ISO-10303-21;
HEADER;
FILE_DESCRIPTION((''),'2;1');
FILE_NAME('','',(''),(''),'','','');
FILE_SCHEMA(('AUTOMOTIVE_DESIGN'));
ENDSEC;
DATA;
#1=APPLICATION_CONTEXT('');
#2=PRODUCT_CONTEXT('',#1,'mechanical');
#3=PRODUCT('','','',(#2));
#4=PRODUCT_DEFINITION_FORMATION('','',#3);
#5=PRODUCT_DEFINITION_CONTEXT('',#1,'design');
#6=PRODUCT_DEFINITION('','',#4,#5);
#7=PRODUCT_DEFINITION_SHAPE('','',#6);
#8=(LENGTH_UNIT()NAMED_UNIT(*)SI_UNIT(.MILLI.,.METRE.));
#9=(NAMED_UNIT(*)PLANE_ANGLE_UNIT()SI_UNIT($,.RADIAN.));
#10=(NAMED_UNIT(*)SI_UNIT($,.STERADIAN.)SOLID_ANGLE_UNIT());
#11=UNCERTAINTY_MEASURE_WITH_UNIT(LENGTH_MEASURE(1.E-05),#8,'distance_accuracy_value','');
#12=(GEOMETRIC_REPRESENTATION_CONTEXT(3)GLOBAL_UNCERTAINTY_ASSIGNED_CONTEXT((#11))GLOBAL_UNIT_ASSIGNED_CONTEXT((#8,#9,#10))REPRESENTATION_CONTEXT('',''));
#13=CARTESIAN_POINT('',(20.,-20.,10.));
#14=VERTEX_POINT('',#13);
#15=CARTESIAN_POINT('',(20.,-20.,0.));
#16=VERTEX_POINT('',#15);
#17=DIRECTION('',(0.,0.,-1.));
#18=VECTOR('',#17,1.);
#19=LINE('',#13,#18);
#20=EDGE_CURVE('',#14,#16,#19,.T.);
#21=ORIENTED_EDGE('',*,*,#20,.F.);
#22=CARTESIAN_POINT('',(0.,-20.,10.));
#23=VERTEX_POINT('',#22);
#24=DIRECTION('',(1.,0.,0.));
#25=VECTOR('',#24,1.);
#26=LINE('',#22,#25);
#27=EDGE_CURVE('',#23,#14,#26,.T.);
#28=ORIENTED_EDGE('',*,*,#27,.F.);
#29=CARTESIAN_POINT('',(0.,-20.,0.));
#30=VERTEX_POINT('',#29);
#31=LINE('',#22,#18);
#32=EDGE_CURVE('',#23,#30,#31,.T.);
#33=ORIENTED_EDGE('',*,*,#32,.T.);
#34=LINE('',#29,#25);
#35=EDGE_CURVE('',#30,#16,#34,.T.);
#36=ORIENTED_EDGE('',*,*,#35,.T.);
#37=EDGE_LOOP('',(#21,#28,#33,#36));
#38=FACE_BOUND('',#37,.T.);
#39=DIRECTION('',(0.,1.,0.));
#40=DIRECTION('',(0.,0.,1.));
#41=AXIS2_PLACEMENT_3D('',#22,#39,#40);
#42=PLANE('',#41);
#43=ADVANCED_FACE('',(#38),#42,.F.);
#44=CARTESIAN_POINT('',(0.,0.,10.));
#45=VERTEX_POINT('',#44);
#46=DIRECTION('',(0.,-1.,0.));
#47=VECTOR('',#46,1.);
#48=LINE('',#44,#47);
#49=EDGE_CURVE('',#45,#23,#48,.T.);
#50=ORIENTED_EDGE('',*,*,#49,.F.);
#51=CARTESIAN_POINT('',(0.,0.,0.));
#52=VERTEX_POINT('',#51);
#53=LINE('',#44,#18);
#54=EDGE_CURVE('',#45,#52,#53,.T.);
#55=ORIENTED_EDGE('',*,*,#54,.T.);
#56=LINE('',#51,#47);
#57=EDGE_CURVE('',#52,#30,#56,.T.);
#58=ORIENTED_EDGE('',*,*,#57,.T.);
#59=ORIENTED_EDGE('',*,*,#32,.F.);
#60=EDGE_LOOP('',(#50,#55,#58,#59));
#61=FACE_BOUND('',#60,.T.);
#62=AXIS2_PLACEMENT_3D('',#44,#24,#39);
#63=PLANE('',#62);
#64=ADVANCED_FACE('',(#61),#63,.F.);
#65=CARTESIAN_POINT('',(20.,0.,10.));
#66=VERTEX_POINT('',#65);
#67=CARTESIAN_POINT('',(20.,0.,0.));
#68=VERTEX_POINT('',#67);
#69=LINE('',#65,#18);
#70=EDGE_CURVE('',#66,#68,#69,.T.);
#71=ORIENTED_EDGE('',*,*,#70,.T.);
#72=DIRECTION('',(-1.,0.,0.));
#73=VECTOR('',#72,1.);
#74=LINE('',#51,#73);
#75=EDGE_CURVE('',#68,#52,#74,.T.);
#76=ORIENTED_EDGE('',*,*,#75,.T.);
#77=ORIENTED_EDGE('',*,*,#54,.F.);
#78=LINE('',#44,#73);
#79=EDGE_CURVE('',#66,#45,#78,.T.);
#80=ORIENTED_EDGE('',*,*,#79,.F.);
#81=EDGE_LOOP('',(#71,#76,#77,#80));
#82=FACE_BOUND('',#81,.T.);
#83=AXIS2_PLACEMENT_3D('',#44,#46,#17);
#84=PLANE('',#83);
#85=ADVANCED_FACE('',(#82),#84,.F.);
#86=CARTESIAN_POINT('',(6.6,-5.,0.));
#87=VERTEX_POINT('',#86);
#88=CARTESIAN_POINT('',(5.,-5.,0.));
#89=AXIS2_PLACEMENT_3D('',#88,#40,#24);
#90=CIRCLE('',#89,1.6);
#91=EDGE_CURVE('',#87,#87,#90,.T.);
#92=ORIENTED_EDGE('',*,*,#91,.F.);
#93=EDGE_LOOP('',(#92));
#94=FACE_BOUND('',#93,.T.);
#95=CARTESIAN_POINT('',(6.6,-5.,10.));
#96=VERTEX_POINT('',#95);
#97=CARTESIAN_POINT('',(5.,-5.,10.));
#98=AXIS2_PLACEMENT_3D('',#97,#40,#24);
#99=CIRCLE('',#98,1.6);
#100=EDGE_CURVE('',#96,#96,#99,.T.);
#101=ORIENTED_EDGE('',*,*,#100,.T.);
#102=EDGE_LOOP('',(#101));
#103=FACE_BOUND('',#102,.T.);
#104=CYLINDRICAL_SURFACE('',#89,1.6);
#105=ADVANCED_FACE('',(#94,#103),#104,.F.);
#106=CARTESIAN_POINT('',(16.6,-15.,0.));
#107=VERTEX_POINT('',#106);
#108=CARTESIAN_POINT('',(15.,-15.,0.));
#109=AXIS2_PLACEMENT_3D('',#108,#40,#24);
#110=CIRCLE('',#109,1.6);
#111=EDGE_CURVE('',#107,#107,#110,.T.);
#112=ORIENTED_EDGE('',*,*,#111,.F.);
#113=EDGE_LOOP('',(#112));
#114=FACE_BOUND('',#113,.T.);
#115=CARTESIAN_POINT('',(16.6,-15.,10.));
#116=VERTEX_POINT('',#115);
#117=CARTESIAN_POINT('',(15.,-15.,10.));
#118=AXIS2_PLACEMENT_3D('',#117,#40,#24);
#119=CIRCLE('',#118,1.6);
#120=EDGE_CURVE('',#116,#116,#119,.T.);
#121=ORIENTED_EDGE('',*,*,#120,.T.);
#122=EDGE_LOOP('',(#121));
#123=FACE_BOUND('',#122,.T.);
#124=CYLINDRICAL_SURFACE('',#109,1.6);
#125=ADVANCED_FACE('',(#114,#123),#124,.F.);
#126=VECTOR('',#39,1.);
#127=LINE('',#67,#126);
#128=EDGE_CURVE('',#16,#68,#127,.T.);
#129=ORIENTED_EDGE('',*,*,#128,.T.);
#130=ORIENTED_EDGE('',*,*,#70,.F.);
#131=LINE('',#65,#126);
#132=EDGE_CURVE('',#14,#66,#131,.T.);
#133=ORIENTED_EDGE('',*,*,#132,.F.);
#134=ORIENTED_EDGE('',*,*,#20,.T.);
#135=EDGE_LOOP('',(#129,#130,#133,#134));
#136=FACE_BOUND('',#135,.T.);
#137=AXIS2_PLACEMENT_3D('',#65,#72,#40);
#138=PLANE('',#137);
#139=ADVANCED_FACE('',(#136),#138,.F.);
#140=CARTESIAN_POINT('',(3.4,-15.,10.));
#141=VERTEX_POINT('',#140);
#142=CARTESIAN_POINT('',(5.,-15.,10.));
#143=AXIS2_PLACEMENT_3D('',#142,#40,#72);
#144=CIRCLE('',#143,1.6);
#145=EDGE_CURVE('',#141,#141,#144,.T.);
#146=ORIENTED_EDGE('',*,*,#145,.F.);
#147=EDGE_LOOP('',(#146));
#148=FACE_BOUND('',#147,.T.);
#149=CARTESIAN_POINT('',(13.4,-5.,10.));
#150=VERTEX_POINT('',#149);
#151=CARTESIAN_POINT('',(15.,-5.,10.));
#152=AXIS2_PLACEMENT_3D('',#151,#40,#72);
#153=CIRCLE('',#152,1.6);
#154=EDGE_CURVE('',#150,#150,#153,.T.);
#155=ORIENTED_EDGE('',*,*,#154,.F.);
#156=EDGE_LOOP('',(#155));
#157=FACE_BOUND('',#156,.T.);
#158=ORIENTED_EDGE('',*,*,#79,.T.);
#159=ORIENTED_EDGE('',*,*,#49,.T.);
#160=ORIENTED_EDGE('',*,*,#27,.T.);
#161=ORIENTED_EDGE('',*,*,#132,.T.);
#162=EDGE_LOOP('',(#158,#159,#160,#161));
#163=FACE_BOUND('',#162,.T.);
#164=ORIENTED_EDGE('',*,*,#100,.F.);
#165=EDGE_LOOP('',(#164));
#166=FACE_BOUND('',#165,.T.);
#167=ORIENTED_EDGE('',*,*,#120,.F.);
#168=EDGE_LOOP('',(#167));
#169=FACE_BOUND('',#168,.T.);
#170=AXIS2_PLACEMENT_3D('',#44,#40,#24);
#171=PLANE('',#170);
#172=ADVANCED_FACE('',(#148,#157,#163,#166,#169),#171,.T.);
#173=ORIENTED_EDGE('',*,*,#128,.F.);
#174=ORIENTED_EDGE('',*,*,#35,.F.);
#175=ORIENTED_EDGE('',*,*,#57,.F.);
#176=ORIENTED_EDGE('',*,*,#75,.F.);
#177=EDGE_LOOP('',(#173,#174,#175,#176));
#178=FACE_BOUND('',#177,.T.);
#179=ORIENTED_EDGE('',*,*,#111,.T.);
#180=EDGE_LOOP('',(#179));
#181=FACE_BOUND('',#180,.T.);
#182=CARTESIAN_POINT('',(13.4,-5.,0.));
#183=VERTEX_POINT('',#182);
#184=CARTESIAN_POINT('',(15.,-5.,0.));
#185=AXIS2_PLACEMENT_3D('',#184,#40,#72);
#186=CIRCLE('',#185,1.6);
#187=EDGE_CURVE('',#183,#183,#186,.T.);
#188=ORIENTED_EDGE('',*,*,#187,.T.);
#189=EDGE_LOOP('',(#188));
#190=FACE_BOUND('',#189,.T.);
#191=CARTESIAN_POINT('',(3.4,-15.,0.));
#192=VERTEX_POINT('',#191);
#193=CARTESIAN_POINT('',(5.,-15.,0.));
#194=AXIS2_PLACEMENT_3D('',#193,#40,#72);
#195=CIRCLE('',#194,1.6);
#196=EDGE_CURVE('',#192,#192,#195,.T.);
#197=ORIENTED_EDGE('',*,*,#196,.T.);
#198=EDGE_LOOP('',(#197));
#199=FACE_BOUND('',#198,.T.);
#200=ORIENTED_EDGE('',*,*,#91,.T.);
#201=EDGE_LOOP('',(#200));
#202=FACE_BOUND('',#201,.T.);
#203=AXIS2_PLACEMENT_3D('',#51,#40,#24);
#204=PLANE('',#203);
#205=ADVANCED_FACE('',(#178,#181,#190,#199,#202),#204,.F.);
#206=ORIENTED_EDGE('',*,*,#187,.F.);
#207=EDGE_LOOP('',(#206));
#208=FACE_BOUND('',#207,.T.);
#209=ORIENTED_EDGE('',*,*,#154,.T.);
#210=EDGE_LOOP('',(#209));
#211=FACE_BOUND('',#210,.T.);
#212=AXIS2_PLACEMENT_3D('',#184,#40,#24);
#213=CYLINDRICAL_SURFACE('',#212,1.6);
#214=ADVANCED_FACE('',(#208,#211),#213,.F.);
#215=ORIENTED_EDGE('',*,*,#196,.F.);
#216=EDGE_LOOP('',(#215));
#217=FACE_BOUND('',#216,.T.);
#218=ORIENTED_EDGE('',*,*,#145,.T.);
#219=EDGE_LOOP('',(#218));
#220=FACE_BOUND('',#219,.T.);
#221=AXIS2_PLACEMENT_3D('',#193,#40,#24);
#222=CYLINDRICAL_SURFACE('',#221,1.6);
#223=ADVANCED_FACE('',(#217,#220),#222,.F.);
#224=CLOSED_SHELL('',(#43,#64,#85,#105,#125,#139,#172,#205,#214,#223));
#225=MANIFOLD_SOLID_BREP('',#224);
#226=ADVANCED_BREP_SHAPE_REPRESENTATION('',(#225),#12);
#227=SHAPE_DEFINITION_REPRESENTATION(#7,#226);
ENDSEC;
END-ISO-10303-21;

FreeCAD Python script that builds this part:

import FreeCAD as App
import Part
import Sketcher

V = App.Vector


def add_polygon(sketch, points):
    """Adds a closed chain of lines whose ends are joined by coincident constraints."""
    first, n = sketch.GeometryCount, len(points)
    for a, b in zip(points, points[1:] + points[:1]):
        sketch.addGeometry(Part.LineSegment(App.Vector(*a, 0), App.Vector(*b, 0)), False)
    for i in range(n):
        sketch.addConstraint(Sketcher.Constraint("Coincident", first + i, 2, first + (i + 1) % n, 1))

doc = App.newDocument("Part")
body = doc.addObject("PartDesign::Body", "Body")

sketch1 = body.newObject("Sketcher::SketchObject", "Sketch")
sketch1.AttachmentSupport = (doc.getObject("XY_Plane"), [""])
sketch1.MapMode = "FlatFace"
add_polygon(sketch1, [(0, 0), (0, -20), (20, -20), (20, 0)])
sketch1.addConstraint(Sketcher.Constraint("Vertical", 0))
sketch1.addConstraint(Sketcher.Constraint("Horizontal", 1))
sketch1.addConstraint(Sketcher.Constraint("Vertical", 2))
sketch1.addConstraint(Sketcher.Constraint("Horizontal", 3))
sketch1.addConstraint(Sketcher.Constraint("Coincident", 3, 2, -1, 1))
sketch1.addConstraint(Sketcher.Constraint("Equal", 3, 0))
sketch1.addConstraint(Sketcher.Constraint("DistanceX", 1, 1, 1, 2, 20.0))
pad1 = body.newObject("PartDesign::Pad", "Pad")
pad1.Profile = sketch1
pad1.Length = 10

sketch2 = body.newObject("Sketcher::SketchObject", "Sketch001")
sketch2.AttachmentSupport = (doc.getObject("XY_Plane"), [""])
sketch2.MapMode = "FlatFace"
sketch2.AttachmentOffset = App.Placement(V(0, 0, 10), App.Rotation())
sketch2.addGeometry(Part.Circle(V(5, -5, 0), V(0, 0, 1), 1.6), False)
sketch2.addGeometry(Part.Circle(V(15, -5, 0), V(0, 0, 1), 1.6), False)
sketch2.addGeometry(Part.Circle(V(15, -15, 0), V(0, 0, 1), 1.6), False)
sketch2.addGeometry(Part.Circle(V(5, -15, 0), V(0, 0, 1), 1.6), False)
sketch2.addConstraint(Sketcher.Constraint("Equal", 0, 1))
sketch2.addConstraint(Sketcher.Constraint("Equal", 1, 2))
sketch2.addConstraint(Sketcher.Constraint("Equal", 2, 3))
sketch2.addConstraint(Sketcher.Constraint("Horizontal", 0, 3, 1, 3))
sketch2.addConstraint(Sketcher.Constraint("Horizontal", 2, 3, 3, 3))
sketch2.addConstraint(Sketcher.Constraint("Vertical", 1, 3, 2, 3))
sketch2.addConstraint(Sketcher.Constraint("Vertical", 0, 3, 3, 3))
sketch2.addConstraint(Sketcher.Constraint("Diameter", 0, 3.2))
sketch2.addConstraint(Sketcher.Constraint("DistanceX", -1, 1, 0, 3, 5.0))
sketch2.addConstraint(Sketcher.Constraint("DistanceY", 0, 3, -1, 1, 5.0))
sketch2.addConstraint(Sketcher.Constraint("DistanceX", -1, 1, 1, 3, 15.0))
sketch2.addConstraint(Sketcher.Constraint("DistanceY", 2, 3, -1, 1, 15.0))
pocket1 = body.newObject("PartDesign::Pocket", "Pocket")
pocket1.Profile = sketch2
pocket1.Type = "ThroughAll"

doc.recompute()
